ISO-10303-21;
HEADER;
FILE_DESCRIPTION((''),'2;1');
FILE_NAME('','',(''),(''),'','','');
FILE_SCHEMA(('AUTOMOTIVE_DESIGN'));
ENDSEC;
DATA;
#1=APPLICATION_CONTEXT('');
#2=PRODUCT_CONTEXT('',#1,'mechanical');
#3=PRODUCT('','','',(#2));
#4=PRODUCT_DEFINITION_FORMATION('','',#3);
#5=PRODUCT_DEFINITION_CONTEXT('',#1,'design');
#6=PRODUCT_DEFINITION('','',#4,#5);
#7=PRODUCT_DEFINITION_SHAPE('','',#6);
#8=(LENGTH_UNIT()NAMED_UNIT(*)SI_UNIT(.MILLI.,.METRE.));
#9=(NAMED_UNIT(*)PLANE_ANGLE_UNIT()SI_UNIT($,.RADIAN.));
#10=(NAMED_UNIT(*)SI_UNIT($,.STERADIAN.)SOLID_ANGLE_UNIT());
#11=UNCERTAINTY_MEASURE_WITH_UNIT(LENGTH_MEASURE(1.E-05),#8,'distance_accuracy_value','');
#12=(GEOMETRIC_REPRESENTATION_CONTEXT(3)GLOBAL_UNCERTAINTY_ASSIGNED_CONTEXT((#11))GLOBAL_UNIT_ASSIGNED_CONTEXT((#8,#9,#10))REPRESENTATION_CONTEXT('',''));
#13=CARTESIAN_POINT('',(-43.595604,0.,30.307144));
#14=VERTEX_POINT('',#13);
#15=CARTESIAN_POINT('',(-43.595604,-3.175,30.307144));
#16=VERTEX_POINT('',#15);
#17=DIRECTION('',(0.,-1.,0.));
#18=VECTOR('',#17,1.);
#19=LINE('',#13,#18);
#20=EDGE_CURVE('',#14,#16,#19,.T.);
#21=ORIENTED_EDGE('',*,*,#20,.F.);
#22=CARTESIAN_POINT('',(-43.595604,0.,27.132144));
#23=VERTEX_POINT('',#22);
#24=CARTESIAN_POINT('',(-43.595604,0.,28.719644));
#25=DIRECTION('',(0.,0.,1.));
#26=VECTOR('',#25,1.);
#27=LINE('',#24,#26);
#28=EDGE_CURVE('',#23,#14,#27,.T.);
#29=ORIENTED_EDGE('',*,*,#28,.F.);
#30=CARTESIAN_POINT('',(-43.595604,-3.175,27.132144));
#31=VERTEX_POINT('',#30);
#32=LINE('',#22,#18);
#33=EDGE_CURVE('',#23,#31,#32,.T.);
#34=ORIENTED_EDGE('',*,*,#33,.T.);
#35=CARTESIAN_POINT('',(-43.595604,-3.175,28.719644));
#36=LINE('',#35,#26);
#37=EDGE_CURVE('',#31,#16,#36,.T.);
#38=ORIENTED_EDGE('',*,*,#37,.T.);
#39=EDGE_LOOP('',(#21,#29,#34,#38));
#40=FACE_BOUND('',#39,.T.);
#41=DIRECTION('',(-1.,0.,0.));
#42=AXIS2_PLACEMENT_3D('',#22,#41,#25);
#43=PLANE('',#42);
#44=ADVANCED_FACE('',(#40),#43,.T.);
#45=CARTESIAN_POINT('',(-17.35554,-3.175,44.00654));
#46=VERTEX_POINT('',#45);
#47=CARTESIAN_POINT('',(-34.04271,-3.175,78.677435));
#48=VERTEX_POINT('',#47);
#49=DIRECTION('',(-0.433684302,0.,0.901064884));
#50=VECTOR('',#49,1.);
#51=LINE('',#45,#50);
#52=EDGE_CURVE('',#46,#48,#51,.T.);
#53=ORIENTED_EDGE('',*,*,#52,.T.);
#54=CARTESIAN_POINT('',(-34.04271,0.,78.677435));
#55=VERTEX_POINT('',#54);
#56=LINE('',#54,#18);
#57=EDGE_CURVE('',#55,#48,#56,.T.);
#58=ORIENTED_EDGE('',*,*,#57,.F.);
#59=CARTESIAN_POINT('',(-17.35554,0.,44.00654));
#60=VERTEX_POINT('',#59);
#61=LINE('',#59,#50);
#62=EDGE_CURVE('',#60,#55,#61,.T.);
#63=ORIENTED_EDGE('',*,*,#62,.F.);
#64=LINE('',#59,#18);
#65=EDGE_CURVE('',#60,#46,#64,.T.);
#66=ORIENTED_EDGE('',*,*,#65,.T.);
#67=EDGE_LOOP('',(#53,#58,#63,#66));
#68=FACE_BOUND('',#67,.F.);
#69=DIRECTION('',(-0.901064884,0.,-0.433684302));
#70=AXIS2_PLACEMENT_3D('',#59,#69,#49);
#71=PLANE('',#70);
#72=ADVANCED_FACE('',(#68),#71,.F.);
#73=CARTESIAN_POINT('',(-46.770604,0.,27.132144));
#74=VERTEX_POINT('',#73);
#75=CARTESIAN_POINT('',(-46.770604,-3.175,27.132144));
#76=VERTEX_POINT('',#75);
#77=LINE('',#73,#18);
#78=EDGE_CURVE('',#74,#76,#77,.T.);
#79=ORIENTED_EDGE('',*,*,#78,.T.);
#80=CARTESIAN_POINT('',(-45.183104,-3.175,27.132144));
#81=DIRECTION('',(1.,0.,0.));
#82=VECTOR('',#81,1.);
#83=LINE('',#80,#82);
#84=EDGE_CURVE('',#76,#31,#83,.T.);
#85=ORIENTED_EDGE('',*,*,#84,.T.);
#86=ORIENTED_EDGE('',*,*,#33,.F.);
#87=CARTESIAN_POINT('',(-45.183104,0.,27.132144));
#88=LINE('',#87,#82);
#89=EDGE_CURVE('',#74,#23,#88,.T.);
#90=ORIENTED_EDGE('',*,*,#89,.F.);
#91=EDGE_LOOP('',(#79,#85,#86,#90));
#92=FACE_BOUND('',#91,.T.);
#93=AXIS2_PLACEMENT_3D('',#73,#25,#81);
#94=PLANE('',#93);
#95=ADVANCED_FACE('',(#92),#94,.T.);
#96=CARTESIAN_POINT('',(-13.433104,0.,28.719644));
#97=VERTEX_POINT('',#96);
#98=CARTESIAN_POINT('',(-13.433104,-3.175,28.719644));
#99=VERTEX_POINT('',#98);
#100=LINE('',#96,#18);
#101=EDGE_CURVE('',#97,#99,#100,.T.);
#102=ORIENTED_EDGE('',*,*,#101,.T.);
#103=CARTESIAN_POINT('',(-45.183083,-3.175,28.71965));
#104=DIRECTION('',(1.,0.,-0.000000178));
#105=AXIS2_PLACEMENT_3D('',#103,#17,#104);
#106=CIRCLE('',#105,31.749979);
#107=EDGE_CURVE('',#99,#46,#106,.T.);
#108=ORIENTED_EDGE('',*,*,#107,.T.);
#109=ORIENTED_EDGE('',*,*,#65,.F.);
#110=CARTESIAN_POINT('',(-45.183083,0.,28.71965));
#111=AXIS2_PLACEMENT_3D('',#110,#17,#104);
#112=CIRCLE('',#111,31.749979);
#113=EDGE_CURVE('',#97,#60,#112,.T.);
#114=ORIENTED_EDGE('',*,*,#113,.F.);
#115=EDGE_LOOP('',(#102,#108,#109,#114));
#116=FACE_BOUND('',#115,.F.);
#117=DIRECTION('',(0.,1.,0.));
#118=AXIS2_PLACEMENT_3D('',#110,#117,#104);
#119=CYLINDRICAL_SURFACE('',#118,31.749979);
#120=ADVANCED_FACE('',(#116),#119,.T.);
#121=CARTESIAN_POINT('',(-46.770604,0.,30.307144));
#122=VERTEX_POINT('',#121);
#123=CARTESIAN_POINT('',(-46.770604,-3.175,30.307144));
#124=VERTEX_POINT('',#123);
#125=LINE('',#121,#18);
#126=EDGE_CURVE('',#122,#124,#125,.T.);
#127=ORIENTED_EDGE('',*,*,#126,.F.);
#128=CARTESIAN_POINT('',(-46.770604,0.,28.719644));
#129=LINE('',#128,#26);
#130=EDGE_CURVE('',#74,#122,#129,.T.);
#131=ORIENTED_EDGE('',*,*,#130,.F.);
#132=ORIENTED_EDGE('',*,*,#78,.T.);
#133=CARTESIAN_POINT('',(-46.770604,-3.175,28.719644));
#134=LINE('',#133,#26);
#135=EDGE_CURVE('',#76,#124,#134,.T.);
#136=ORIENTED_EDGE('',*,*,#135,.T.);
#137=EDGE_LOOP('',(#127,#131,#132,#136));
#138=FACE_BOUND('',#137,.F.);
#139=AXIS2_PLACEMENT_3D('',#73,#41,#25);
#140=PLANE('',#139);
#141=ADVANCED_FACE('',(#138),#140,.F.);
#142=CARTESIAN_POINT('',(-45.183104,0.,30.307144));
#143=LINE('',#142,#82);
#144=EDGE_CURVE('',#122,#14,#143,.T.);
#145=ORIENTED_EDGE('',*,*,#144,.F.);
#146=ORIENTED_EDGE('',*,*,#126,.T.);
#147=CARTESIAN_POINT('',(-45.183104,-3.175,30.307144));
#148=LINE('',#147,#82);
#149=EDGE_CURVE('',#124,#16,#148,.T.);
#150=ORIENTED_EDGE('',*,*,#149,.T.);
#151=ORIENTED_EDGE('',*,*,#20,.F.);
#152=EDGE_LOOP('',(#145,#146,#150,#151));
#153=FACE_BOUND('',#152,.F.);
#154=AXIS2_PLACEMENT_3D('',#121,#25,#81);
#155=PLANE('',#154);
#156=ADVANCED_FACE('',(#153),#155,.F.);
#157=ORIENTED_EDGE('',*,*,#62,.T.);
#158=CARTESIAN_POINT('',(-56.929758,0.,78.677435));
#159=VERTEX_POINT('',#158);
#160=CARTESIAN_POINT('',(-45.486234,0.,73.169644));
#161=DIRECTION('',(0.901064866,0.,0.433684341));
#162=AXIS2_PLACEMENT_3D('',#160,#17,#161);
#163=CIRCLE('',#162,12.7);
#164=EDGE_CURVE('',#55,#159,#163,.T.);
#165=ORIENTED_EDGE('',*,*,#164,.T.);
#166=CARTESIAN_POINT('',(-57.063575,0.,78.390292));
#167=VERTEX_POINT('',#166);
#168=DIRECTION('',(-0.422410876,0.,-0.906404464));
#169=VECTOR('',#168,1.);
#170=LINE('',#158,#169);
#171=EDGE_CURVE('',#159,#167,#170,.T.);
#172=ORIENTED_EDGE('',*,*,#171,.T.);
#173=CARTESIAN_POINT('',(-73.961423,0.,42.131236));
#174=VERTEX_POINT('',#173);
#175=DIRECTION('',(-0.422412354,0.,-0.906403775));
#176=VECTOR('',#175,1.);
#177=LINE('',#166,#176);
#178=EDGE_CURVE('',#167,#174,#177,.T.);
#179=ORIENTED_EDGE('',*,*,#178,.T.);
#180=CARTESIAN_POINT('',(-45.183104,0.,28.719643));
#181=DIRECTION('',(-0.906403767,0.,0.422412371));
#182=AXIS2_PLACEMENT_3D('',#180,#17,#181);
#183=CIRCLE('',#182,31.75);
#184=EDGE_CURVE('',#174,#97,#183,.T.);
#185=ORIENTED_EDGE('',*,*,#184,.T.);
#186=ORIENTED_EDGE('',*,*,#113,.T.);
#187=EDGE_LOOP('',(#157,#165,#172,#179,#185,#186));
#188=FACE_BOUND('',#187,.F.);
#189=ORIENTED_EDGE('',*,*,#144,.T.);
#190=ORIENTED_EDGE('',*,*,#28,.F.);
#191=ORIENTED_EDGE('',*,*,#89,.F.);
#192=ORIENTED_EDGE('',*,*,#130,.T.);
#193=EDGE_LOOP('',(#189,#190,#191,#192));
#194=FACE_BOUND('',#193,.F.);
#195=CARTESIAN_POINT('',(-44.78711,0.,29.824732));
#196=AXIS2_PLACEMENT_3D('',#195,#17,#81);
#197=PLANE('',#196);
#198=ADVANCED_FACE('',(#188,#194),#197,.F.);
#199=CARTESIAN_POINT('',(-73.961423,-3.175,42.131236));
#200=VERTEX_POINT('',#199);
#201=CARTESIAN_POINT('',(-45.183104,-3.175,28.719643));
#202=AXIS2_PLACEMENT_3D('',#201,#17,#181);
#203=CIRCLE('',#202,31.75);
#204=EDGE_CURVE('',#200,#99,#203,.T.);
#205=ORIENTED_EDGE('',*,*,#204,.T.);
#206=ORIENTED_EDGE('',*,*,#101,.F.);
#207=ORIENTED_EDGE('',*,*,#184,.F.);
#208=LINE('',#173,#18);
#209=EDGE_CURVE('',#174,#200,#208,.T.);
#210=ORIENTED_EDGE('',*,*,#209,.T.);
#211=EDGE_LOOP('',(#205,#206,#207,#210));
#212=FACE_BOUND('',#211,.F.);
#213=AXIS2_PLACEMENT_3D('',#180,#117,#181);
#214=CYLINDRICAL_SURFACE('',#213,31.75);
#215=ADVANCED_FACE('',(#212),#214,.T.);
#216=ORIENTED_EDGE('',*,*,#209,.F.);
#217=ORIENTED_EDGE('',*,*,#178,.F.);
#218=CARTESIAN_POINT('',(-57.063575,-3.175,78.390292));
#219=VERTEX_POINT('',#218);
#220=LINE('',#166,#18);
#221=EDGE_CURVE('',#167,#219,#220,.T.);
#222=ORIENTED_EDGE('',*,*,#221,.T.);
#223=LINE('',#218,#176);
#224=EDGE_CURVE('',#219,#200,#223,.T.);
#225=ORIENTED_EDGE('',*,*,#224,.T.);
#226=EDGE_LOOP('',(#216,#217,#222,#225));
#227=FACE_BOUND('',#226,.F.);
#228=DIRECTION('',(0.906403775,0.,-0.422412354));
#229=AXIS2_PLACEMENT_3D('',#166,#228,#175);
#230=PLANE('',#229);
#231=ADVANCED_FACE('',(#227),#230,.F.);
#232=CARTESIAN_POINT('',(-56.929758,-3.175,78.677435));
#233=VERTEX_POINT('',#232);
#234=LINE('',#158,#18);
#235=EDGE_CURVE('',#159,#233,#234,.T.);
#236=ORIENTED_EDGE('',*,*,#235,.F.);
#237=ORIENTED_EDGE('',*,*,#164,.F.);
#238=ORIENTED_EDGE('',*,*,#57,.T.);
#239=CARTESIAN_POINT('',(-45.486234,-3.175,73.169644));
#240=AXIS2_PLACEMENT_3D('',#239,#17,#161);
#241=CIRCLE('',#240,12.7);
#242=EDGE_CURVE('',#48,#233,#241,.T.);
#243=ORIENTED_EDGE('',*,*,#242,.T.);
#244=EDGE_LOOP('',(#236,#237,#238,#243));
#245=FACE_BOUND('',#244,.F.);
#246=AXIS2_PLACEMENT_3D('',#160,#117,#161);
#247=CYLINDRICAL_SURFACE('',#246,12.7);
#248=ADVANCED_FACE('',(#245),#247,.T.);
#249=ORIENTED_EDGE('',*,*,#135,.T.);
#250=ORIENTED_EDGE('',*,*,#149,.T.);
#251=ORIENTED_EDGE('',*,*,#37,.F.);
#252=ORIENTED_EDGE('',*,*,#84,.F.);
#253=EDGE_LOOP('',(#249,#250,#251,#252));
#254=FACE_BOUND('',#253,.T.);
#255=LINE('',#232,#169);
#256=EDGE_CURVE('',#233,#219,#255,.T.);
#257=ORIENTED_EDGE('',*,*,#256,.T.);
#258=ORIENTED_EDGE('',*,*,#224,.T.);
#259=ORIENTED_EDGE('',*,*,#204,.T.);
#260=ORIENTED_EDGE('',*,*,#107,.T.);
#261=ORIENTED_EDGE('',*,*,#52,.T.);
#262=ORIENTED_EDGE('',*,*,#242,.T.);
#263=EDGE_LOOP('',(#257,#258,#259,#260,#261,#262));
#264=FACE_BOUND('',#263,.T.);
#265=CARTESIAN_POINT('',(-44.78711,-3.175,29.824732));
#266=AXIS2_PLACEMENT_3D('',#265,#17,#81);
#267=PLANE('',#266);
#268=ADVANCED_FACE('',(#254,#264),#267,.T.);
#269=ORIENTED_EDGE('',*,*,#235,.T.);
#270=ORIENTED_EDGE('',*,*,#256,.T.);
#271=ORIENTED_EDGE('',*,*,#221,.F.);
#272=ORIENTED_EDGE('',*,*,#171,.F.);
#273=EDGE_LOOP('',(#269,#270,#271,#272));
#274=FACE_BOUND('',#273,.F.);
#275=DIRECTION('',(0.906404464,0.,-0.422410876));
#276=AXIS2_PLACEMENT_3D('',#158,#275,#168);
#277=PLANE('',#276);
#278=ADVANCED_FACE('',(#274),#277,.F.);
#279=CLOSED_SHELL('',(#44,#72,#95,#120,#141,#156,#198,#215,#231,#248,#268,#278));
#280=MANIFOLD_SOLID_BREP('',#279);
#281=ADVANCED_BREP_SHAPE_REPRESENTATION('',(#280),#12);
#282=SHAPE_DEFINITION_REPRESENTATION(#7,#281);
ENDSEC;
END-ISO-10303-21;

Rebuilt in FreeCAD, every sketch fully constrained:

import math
import FreeCAD as App
import Part
import Sketcher

V = App.Vector
Q = App.Units.Quantity

doc = App.newDocument("Part")
body = doc.addObject("PartDesign::Body", "Body")

sketch1 = doc.addObject("Sketcher::SketchObject", "Sketch")
body.addObject(sketch1)
sketch1.AttachmentSupport = (doc.XZ_Plane, [""])
sketch1.MapMode = "FlatFace"
sketch1.addGeometry(Part.ArcOfCircle(Part.Circle(V(-45.18, 28.72, 0), V(0, 0, 1), 31.75), math.radians(155), math.radians(360)), False)
sketch1.addGeometry(Part.ArcOfCircle(Part.Circle(V(-45.18, 28.72, 0), V(0, 0, 1), 31.75), math.radians(0), math.radians(29)), False)
sketch1.addGeometry(Part.LineSegment(V(-17.36, 44.01, 0), V(-34.04, 78.68, 0)), False)
sketch1.addGeometry(Part.ArcOfCircle(Part.Circle(V(-45.49, 73.17, 0), V(0, 0, 1), 12.7), math.radians(26), math.radians(154)), False)
sketch1.addGeometry(Part.LineSegment(V(-56.93, 78.68, 0), V(-57.06, 78.39, 0)), False)
sketch1.addGeometry(Part.LineSegment(V(-57.06, 78.39, 0), V(-73.96, 42.13, 0)), False)
sketch1.addGeometry(Part.LineSegment(V(-43.6, 27.13, 0), V(-46.77, 27.13, 0)), False)
sketch1.addGeometry(Part.LineSegment(V(-46.77, 27.13, 0), V(-46.77, 30.31, 0)), False)
sketch1.addGeometry(Part.LineSegment(V(-46.77, 30.31, 0), V(-43.6, 30.31, 0)), False)
sketch1.addGeometry(Part.LineSegment(V(-43.6, 30.31, 0), V(-43.6, 27.13, 0)), False)
sketch1.addConstraint(Sketcher.Constraint("Tangent", 0, 2, 1, 1))
sketch1.addConstraint(Sketcher.Constraint("Coincident", 1, 2, 2, 1))
sketch1.addConstraint(Sketcher.Constraint("Tangent", 2, 2, 3, 1))
sketch1.addConstraint(Sketcher.Constraint("Coincident", 3, 2, 4, 1))
sketch1.addConstraint(Sketcher.Constraint("Coincident", 4, 2, 5, 1))
sketch1.addConstraint(Sketcher.Constraint("Tangent", 5, 2, 0, 1))
sketch1.addConstraint(Sketcher.Constraint("Coincident", 6, 2, 7, 1))
sketch1.addConstraint(Sketcher.Constraint("Coincident", 7, 2, 8, 1))
sketch1.addConstraint(Sketcher.Constraint("Coincident", 8, 2, 9, 1))
sketch1.addConstraint(Sketcher.Constraint("Coincident", 9, 2, 6, 1))
sketch1.addConstraint(Sketcher.Constraint("Horizontal", 6))
sketch1.addConstraint(Sketcher.Constraint("Vertical", 7))
sketch1.addConstraint(Sketcher.Constraint("Horizontal", 8))
sketch1.addConstraint(Sketcher.Constraint("Vertical", 9))
sketch1.addConstraint(Sketcher.Constraint("Parallel", 4, 5))
sketch1.addConstraint(Sketcher.Constraint("Horizontal", 2, 2, 3, 2))
sketch1.addConstraint(Sketcher.Constraint("Equal", 8, 7))
sketch1.addConstraint(Sketcher.Constraint("Radius", 3, Q("0.5 in")))
sketch1.addConstraint(Sketcher.Constraint("Radius", 0, Q("1.25 in")))
sketch1.addConstraint(Sketcher.Constraint("DistanceX", 6, 2, 6, 1, Q("0.125 in")))
sketch1.addConstraint(Sketcher.Constraint("DistanceY", 0, 3, 3, 3, Q("1.75 in")))
sketch1.addConstraint(Sketcher.Constraint("DistanceY", 0, 2, 3, 3, Q("1.75 in")))
sketch1.addConstraint(Sketcher.Constraint("Radius", 1, 31.749979))
sketch1.addConstraint(Sketcher.Constraint("DistanceX", 6, 2, 0, 3, Q("0.0625 in")))
sketch1.addConstraint(Sketcher.Constraint("DistanceY", 6, 2, 0, 3, Q("0.0625 in")))
sketch1.addConstraint(Sketcher.Constraint("DistanceY", 5, 2, 3, 2, 36.546199))
sketch1.addConstraint(Sketcher.Constraint("Distance", 2, 38.47769))
sketch1.addConstraint(Sketcher.Constraint("DistanceY", -1, 1, 1, 3, 28.71965))
sketch1.addConstraint(Sketcher.Constraint("DistanceX", 1, 2, -1, 1, 17.35554))
sketch1.addConstraint(Sketcher.Constraint("DistanceX", 4, 2, 3, 3, 11.577341))
pad1 = doc.addObject("PartDesign::Pad", "Pad")
body.addObject(pad1)
pad1.Profile = sketch1
pad1.Length = Q("0.125 in")

doc.recompute()
